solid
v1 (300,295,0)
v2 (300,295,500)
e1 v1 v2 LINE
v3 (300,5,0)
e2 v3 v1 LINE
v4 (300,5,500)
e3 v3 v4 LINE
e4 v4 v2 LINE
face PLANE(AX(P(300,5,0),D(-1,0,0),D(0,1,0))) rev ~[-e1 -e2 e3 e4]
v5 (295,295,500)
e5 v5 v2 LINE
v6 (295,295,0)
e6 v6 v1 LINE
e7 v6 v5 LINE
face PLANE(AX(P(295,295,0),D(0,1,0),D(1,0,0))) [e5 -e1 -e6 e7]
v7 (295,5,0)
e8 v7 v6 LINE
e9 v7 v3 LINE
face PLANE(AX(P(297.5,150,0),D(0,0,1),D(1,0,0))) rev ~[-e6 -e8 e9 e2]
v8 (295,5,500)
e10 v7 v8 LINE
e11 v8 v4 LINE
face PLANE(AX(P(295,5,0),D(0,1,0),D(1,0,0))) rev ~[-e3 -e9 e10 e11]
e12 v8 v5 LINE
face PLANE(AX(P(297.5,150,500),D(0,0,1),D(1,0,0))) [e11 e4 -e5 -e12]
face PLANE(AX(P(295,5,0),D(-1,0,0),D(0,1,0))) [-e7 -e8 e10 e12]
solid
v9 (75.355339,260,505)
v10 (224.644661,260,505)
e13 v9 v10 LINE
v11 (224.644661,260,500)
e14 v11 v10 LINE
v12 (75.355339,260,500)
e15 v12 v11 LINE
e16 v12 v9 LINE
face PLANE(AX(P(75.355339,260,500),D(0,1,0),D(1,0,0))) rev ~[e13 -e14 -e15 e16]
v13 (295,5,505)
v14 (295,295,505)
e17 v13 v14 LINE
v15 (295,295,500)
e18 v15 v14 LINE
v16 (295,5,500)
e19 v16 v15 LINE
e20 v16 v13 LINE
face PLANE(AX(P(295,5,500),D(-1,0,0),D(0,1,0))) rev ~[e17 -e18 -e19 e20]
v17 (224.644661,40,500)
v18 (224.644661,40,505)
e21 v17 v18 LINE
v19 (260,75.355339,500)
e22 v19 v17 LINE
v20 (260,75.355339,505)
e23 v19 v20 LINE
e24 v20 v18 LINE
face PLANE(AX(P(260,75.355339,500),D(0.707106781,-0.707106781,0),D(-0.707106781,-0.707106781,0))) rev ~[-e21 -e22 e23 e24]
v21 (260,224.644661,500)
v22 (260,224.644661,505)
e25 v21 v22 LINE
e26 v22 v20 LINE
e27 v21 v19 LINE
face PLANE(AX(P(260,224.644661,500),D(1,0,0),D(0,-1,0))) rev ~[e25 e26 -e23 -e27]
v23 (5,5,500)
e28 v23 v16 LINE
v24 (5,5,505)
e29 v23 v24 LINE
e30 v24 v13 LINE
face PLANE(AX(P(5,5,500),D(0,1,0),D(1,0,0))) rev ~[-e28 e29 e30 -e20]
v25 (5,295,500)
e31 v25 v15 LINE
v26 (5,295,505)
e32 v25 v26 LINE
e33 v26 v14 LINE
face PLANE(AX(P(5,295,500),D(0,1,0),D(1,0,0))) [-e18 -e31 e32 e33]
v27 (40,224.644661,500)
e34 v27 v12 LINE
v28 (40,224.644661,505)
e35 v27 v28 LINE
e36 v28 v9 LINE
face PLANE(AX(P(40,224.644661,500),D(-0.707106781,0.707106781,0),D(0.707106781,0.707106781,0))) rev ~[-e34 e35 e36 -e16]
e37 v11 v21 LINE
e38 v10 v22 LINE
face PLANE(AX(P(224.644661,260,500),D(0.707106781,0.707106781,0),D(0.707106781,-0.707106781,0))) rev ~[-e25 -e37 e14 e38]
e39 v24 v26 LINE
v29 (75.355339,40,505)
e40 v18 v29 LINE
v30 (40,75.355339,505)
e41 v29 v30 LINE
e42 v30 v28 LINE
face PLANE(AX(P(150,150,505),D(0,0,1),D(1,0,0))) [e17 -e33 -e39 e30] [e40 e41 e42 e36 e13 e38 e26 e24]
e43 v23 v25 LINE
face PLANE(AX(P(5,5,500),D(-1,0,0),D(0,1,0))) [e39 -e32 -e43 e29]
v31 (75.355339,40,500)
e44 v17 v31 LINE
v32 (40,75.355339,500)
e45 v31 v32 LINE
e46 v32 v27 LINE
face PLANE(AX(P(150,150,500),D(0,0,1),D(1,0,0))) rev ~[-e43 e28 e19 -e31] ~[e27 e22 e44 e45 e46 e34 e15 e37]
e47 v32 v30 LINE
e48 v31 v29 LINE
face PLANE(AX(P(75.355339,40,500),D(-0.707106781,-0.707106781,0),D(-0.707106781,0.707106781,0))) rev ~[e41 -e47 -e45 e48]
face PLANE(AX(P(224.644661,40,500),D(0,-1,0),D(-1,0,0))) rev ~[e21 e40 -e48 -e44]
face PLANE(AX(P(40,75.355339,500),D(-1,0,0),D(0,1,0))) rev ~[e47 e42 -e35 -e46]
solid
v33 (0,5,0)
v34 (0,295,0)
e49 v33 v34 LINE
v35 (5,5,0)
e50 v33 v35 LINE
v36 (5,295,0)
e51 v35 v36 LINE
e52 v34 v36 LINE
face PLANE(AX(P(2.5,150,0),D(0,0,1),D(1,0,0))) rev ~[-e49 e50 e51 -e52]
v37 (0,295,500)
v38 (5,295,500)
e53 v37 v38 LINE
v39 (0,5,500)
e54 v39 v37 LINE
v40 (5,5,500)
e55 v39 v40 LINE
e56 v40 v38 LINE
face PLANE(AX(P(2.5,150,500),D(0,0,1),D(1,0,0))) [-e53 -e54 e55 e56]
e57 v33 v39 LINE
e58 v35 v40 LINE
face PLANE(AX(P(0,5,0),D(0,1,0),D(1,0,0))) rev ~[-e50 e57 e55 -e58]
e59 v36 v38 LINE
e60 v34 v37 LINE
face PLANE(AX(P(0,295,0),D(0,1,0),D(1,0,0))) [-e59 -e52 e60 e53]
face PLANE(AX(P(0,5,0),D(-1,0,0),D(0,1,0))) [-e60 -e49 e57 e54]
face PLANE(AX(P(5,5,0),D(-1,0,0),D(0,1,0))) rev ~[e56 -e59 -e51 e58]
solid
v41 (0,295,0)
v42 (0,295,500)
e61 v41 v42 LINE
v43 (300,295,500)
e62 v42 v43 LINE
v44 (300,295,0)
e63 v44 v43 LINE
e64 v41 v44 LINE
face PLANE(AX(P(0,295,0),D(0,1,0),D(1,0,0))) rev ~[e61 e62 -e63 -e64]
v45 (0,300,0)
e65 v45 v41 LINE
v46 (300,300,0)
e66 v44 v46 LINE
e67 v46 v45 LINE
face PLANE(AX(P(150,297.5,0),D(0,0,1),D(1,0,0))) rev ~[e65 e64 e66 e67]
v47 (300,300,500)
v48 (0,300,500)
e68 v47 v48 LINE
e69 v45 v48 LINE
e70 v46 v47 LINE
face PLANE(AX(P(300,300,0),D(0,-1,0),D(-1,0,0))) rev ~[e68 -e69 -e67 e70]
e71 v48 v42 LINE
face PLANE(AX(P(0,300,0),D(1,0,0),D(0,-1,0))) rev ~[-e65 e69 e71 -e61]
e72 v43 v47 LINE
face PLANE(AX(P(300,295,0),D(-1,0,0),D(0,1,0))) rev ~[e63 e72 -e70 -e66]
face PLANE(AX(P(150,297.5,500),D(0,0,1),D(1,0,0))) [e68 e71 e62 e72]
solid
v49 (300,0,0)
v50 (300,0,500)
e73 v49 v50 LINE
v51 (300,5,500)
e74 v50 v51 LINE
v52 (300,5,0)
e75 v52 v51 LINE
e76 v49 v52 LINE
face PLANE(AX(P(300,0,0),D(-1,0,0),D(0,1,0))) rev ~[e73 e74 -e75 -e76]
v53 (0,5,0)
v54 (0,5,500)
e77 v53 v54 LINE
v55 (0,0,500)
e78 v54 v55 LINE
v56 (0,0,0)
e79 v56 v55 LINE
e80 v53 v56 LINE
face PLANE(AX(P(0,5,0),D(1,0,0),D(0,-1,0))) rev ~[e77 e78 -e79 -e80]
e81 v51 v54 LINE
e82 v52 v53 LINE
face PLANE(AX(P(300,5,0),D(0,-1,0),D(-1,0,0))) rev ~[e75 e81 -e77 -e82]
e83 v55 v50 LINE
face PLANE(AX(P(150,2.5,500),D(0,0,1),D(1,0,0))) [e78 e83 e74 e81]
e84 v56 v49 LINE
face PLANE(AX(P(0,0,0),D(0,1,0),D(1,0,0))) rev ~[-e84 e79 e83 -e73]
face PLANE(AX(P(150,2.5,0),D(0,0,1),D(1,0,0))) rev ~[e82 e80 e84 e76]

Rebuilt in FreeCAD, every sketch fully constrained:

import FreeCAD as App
import Part
import Sketcher
from FreeCAD import Vector

doc = App.newDocument("Part")
body = doc.addObject("PartDesign::Body", "Body")

# Sketch on XY plane
sketch1 = body.newObject("Sketcher::SketchObject", "Sketch")
sketch1.AttachmentSupport = (doc.getObject("XY_Plane"), [""])
sketch1.MapMode = "FlatFace"
sketch1.addGeometry([
    Part.LineSegment(Vector(0, 300, 0), Vector(0, 295, 0)),
    Part.LineSegment(Vector(0, 295, 0), Vector(300, 295, 0)),
    Part.LineSegment(Vector(300, 295, 0), Vector(300, 300, 0)),
    Part.LineSegment(Vector(300, 300, 0), Vector(0, 300, 0)),
], False)
sketch1.addConstraint([
    Sketcher.Constraint("Coincident", 0, 2, 1, 1),
    Sketcher.Constraint("Coincident", 1, 2, 2, 1),
    Sketcher.Constraint("Coincident", 2, 2, 3, 1),
    Sketcher.Constraint("Coincident", 3, 2, 0, 1),
    Sketcher.Constraint("Vertical", 0),
    Sketcher.Constraint("Horizontal", 1),
    Sketcher.Constraint("Vertical", 2),
    Sketcher.Constraint("Horizontal", 3),
    Sketcher.Constraint("PointOnObject", 0, 2, -2),
    Sketcher.Constraint("DistanceX", 1, 1, 1, 2, 300.0),
    Sketcher.Constraint("DistanceY", 0, 2, 0, 1, 5.0),
    Sketcher.Constraint("DistanceY", -1, 1, 0, 2, 295.0),
])
pad1 = body.newObject("PartDesign::Pad", "Pad")
pad1.Profile = sketch1
pad1.Length = 500
body2 = doc.addObject("PartDesign::Body", "Body001")

# Sketch on XY plane
sketch2 = body2.newObject("Sketcher::SketchObject", "Sketch001")
sketch2.AttachmentSupport = (doc.getObject("XY_Plane001"), [""])
sketch2.MapMode = "FlatFace"
sketch2.addGeometry([
    Part.LineSegment(Vector(0, 5, 0), Vector(0, 0, 0)),
    Part.LineSegment(Vector(0, 0, 0), Vector(300, 0, 0)),
    Part.LineSegment(Vector(300, 0, 0), Vector(300, 5, 0)),
    Part.LineSegment(Vector(300, 5, 0), Vector(0, 5, 0)),
], False)
sketch2.addConstraint([
    Sketcher.Constraint("Coincident", 0, 2, 1, 1),
    Sketcher.Constraint("Coincident", 1, 2, 2, 1),
    Sketcher.Constraint("Coincident", 2, 2, 3, 1),
    Sketcher.Constraint("Coincident", 3, 2, 0, 1),
    Sketcher.Constraint("Vertical", 0),
    Sketcher.Constraint("Horizontal", 1),
    Sketcher.Constraint("Vertical", 2),
    Sketcher.Constraint("Horizontal", 3),
    Sketcher.Constraint("Coincident", 0, 2, -1, 1),
    Sketcher.Constraint("DistanceX", 1, 1, 1, 2, 300.0),
    Sketcher.Constraint("DistanceY", 0, 2, 0, 1, 5.0),
])
pad2 = body2.newObject("PartDesign::Pad", "Pad001")
pad2.Profile = sketch2
pad2.Length = 500
body3 = doc.addObject("PartDesign::Body", "Body002")

# Sketch on XY plane
sketch3 = body3.newObject("Sketcher::SketchObject", "Sketch002")
sketch3.AttachmentSupport = (doc.getObject("XY_Plane002"), [""])
sketch3.MapMode = "FlatFace"
sketch3.addGeometry([
    Part.LineSegment(Vector(0, 295, 0), Vector(0, 5, 0)),
    Part.LineSegment(Vector(0, 5, 0), Vector(5, 5, 0)),
    Part.LineSegment(Vector(5, 5, 0), Vector(5, 295, 0)),
    Part.LineSegment(Vector(5, 295, 0), Vector(0, 295, 0)),
], False)
sketch3.addConstraint([
    Sketcher.Constraint("Coincident", 0, 2, 1, 1),
    Sketcher.Constraint("Coincident", 1, 2, 2, 1),
    Sketcher.Constraint("Coincident", 2, 2, 3, 1),
    Sketcher.Constraint("Coincident", 3, 2, 0, 1),
    Sketcher.Constraint("Vertical", 0),
    Sketcher.Constraint("Horizontal", 1),
    Sketcher.Constraint("Vertical", 2),
    Sketcher.Constraint("Horizontal", 3),
    Sketcher.Constraint("PointOnObject", 0, 2, -2),
    Sketcher.Constraint("DistanceX", 1, 1, 1, 2, 5.0),
    Sketcher.Constraint("DistanceY", 0, 2, 0, 1, 290.0),
    Sketcher.Constraint("DistanceY", -1, 1, 0, 2, 5.0),
])
pad3 = body3.newObject("PartDesign::Pad", "Pad002")
pad3.Profile = sketch3
pad3.Length = 500
body4 = doc.addObject("PartDesign::Body", "Body003")

# Sketch on XY plane
sketch4 = body4.newObject("Sketcher::SketchObject", "Sketch003")
sketch4.AttachmentSupport = (doc.getObject("XY_Plane003"), [""])
sketch4.MapMode = "FlatFace"
sketch4.addGeometry([
    Part.LineSegment(Vector(295, 295, 0), Vector(295, 5, 0)),
    Part.LineSegment(Vector(295, 5, 0), Vector(300, 5, 0)),
    Part.LineSegment(Vector(300, 5, 0), Vector(300, 295, 0)),
    Part.LineSegment(Vector(300, 295, 0), Vector(295, 295, 0)),
], False)
sketch4.addConstraint([
    Sketcher.Constraint("Coincident", 0, 2, 1, 1),
    Sketcher.Constraint("Coincident", 1, 2, 2, 1),
    Sketcher.Constraint("Coincident", 2, 2, 3, 1),
    Sketcher.Constraint("Coincident", 3, 2, 0, 1),
    Sketcher.Constraint("Vertical", 0),
    Sketcher.Constraint("Horizontal", 1),
    Sketcher.Constraint("Vertical", 2),
    Sketcher.Constraint("Horizontal", 3),
    Sketcher.Constraint("DistanceX", 1, 1, 1, 2, 5.0),
    Sketcher.Constraint("DistanceY", 0, 2, 0, 1, 290.0),
    Sketcher.Constraint("DistanceX", -1, 1, 0, 2, 295.0),
    Sketcher.Constraint("DistanceY", -1, 1, 0, 2, 5.0),
])
pad4 = body4.newObject("PartDesign::Pad", "Pad003")
pad4.Profile = sketch4
pad4.Length = 500
body5 = doc.addObject("PartDesign::Body", "Body004")

# Sketch on XY plane
sketch5 = body5.newObject("Sketcher::SketchObject", "Sketch004")
sketch5.AttachmentSupport = (doc.getObject("XY_Plane004"), [""])
sketch5.MapMode = "FlatFace"
sketch5.AttachmentOffset = App.Placement(Vector(0, 0, 500), App.Rotation())
sketch5.addGeometry([
    Part.LineSegment(Vector(5, 295, 0), Vector(5, 5, 0)),  # 0
    Part.LineSegment(Vector(5, 5, 0), Vector(295, 5, 0)),  # 1
    Part.LineSegment(Vector(295, 5, 0), Vector(295, 295, 0)),  # 2
    Part.LineSegment(Vector(295, 295, 0), Vector(5, 295, 0)),  # 3
    Part.LineSegment(Vector(40, 75, 0), Vector(40, 225, 0)),  # 4
    Part.LineSegment(Vector(40, 225, 0), Vector(75, 260, 0)),  # 5
    Part.LineSegment(Vector(75, 260, 0), Vector(225, 260, 0)),  # 6
    Part.LineSegment(Vector(225, 260, 0), Vector(260, 225, 0)),  # 7
    Part.LineSegment(Vector(260, 225, 0), Vector(260, 75, 0)),  # 8
    Part.LineSegment(Vector(260, 75, 0), Vector(225, 40, 0)),  # 9
    Part.LineSegment(Vector(225, 40, 0), Vector(75, 40, 0)),  # 10
    Part.LineSegment(Vector(75, 40, 0), Vector(40, 75, 0)),  # 11
], False)
sketch5.addConstraint([
    Sketcher.Constraint("Coincident", 0, 2, 1, 1),
    Sketcher.Constraint("Coincident", 1, 2, 2, 1),
    Sketcher.Constraint("Coincident", 2, 2, 3, 1),
    Sketcher.Constraint("Coincident", 3, 2, 0, 1),
    Sketcher.Constraint("Coincident", 4, 2, 5, 1),
    Sketcher.Constraint("Coincident", 5, 2, 6, 1),
    Sketcher.Constraint("Coincident", 6, 2, 7, 1),
    Sketcher.Constraint("Coincident", 7, 2, 8, 1),
    Sketcher.Constraint("Coincident", 8, 2, 9, 1),
    Sketcher.Constraint("Coincident", 9, 2, 10, 1),
    Sketcher.Constraint("Coincident", 10, 2, 11, 1),
    Sketcher.Constraint("Coincident", 11, 2, 4, 1),
    Sketcher.Constraint("Vertical", 0),
    Sketcher.Constraint("Horizontal", 1),
    Sketcher.Constraint("Vertical", 2),
    Sketcher.Constraint("Horizontal", 3),
    Sketcher.Constraint("Vertical", 4),
    Sketcher.Constraint("Horizontal", 6),
    Sketcher.Constraint("Vertical", 8),
    Sketcher.Constraint("Horizontal", 10),
    Sketcher.Constraint("Perpendicular", 5, 7),
    Sketcher.Constraint("Perpendicular", 7, 9),
    Sketcher.Constraint("Perpendicular", 9, 11),
    Sketcher.Constraint("Horizontal", 4, 2, 7, 2),
    Sketcher.Constraint("Horizontal", 8, 2, 11, 2),
    Sketcher.Constraint("Vertical", 6, 2, 9, 2),
    Sketcher.Constraint("Vertical", 5, 2, 10, 2),
    Sketcher.Constraint("Equal", 3, 0),
    Sketcher.Constraint("Equal", 10, 4),
    Sketcher.Constraint("DistanceX", 1, 1, 1, 2, 290.0),
    Sketcher.Constraint("Distance", 5, 50.0),
    Sketcher.Constraint("DistanceX", -1, 1, 0, 2, 5.0),
    Sketcher.Constraint("DistanceY", -1, 1, 0, 2, 5.0),
    Sketcher.Constraint("DistanceX", -1, 1, 4, 2, 40.0),
    Sketcher.Constraint("DistanceY", -1, 1, 5, 2, 260.0),
    Sketcher.Constraint("DistanceX", -1, 1, 7, 2, 260.0),
])
pad5 = body5.newObject("PartDesign::Pad", "Pad004")
pad5.Profile = sketch5
pad5.Length = 5

doc.recompute()
